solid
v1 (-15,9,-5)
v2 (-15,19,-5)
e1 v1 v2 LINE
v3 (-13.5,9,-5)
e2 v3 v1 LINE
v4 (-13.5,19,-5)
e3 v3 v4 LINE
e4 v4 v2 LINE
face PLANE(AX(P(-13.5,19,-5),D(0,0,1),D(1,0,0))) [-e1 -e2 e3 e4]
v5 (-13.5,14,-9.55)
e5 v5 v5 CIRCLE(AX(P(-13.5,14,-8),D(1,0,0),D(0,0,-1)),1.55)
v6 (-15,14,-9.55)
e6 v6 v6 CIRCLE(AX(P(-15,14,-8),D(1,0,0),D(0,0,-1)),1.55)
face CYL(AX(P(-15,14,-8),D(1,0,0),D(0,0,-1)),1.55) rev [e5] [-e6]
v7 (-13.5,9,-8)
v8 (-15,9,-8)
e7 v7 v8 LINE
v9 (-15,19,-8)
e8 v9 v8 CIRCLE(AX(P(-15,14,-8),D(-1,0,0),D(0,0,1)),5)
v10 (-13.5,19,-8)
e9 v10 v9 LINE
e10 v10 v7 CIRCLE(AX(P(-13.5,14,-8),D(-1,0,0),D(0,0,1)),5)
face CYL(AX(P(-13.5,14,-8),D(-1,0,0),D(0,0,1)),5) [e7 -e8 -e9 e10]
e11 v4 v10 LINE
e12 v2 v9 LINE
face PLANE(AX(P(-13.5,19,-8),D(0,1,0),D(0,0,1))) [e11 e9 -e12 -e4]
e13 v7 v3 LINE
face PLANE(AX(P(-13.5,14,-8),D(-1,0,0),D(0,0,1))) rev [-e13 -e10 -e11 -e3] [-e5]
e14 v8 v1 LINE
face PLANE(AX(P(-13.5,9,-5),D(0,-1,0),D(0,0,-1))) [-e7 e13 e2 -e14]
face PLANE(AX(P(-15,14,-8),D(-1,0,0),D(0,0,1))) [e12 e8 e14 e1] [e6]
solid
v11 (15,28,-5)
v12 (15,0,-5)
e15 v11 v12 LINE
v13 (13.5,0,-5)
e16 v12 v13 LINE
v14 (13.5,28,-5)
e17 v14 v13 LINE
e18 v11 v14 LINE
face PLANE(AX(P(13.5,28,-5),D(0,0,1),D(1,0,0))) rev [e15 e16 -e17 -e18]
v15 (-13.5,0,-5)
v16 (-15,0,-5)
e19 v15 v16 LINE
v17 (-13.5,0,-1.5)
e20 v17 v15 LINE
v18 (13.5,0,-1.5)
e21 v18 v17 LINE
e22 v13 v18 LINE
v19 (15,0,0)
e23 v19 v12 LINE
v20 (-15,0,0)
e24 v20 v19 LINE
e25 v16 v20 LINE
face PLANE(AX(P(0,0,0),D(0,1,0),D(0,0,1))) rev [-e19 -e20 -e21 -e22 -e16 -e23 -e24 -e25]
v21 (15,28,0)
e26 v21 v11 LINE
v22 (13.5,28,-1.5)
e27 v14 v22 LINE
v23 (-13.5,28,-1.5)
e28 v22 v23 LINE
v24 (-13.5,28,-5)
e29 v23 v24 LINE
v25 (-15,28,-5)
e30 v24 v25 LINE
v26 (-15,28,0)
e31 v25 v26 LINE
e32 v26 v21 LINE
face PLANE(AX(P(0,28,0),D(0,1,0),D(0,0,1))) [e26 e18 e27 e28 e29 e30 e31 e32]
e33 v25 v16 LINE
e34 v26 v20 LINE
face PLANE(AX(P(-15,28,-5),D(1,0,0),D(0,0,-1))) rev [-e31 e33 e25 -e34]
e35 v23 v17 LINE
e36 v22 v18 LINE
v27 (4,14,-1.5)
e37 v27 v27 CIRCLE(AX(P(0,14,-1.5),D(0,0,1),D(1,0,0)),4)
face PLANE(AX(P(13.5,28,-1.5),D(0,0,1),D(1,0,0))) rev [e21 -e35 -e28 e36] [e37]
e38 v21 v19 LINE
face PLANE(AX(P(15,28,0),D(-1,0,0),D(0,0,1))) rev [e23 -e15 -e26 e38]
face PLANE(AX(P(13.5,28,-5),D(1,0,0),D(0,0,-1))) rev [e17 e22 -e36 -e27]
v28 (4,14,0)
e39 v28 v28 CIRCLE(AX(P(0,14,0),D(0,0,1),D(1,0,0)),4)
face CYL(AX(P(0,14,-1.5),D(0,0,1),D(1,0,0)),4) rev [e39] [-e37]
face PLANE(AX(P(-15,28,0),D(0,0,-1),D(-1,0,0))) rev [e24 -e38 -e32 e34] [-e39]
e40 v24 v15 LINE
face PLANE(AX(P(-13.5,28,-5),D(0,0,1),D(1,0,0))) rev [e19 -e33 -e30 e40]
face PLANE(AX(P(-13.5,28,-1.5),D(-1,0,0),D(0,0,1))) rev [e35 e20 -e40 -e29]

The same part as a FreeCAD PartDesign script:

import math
import FreeCAD as App
import Part
import Sketcher
Q = App.Units.Quantity


def add_polygon(sketch, points):
    """Adds a closed chain of lines whose ends are joined by coincident constraints."""
    first, n = sketch.GeometryCount, len(points)
    for a, b in zip(points, points[1:] + points[:1]):
        sketch.addGeometry(Part.LineSegment(App.Vector(*a, 0), App.Vector(*b, 0)), False)
    for i in range(n):
        sketch.addConstraint(Sketcher.Constraint("Coincident", first + i, 2, first + (i + 1) % n, 1))

doc = App.newDocument("Part")
body = doc.addObject("PartDesign::Body", "Body")

sketch1 = body.newObject("Sketcher::SketchObject", "Sketch")
sketch1.AttachmentSupport = (doc.getObject("XZ_Plane"), [""])
sketch1.MapMode = "FlatFace"
add_polygon(sketch1, [(-15, 0), (15, 0), (15, -5), (13.5, -5), (13.5, -1.5), (-13.5, -1.5), (-13.5, -5), (-15, -5)])
sketch1.addConstraint([
    Sketcher.Constraint("Horizontal", 0),
    Sketcher.Constraint("Vertical", 1),
    Sketcher.Constraint("Horizontal", 2),
    Sketcher.Constraint("Vertical", 3),
    Sketcher.Constraint("Horizontal", 4),
    Sketcher.Constraint("Vertical", 5),
    Sketcher.Constraint("Horizontal", 6),
    Sketcher.Constraint("Vertical", 7),
    Sketcher.Constraint("Symmetric", 0, 2, 7, 2, -1, 1),
    Sketcher.Constraint("Symmetric", 2, 2, 5, 2, -2),
    Sketcher.Constraint("DistanceX", 0, 1, 0, 2, Q("30 mm")),
    Sketcher.Constraint("DistanceX", 4, 2, 4, 1, Q("27 mm")),
    Sketcher.Constraint("DistanceY", 1, 2, 1, 1, Q("5 mm")),
    Sketcher.Constraint("DistanceY", 3, 1, 3, 2, Q("3.5 mm")),
])
pad1 = body.newObject("PartDesign::Pad", "Pad")
pad1.Profile = sketch1
pad1.Length = 28
pad1.Reversed = True

sketch2 = body.newObject("Sketcher::SketchObject", "Sketch001")
sketch2.AttachmentSupport = (doc.getObject("XY_Plane"), [""])
sketch2.MapMode = "FlatFace"
sketch2.addGeometry(Part.Circle(App.Vector(0, 14, 0), App.Vector(0, 0, 1), 4), False)
sketch2.addConstraint([
    Sketcher.Constraint("PointOnObject", 0, 3, -2),
    Sketcher.Constraint("Diameter", 0, Q("8 mm")),
    Sketcher.Constraint("DistanceY", -1, 1, 0, 3, Q("14 mm")),
])
pocket1 = body.newObject("PartDesign::Pocket", "Pocket")
pocket1.Profile = sketch2
pocket1.Length = 1.5
body2 = doc.addObject("PartDesign::Body", "Body001")

sketch3 = body2.newObject("Sketcher::SketchObject", "Sketch002")
sketch3.AttachmentSupport = (doc.getObject("YZ_Plane001"), [""])
sketch3.MapMode = "FlatFace"
sketch3.AttachmentOffset = App.Placement(App.Vector(0, 0, -15), App.Rotation())
sketch3.addGeometry([
    Part.LineSegment(App.Vector(19, -5, 0), App.Vector(19, -8, 0)),
    Part.ArcOfCircle(Part.Circle(App.Vector(14, -8, 0), App.Vector(0, 0, 1), 5), math.radians(180), math.radians(360)),
    Part.LineSegment(App.Vector(9, -8, 0), App.Vector(9, -5, 0)),
    Part.LineSegment(App.Vector(9, -5, 0), App.Vector(19, -5, 0)),
], False)
sketch3.addConstraint([
    Sketcher.Constraint("Tangent", 0, 2, 1, 2),
    Sketcher.Constraint("Tangent", 1, 1, 2, 1),
    Sketcher.Constraint("Coincident", 2, 2, 3, 1),
    Sketcher.Constraint("Coincident", 3, 2, 0, 1),
    Sketcher.Constraint("Vertical", 0),
    Sketcher.Constraint("Vertical", 2),
    Sketcher.Constraint("Horizontal", 3),
    Sketcher.Constraint("Radius", 1, Q("5 mm")),
    Sketcher.Constraint("DistanceY", 0, 2, 0, 1, Q("3 mm")),
    Sketcher.Constraint("DistanceX", -1, 1, 1, 3, Q("14 mm")),
    Sketcher.Constraint("DistanceY", 1, 3, -1, 1, Q("8 mm")),
])
pad2 = body2.newObject("PartDesign::Pad", "Pad001")
pad2.Profile = sketch3
pad2.Length = 1.5

sketch4 = body2.newObject("Sketcher::SketchObject", "Sketch003")
sketch4.AttachmentSupport = (doc.getObject("YZ_Plane001"), [""])
sketch4.MapMode = "FlatFace"
sketch4.AttachmentOffset = App.Placement(App.Vector(0, 0, -13.5), App.Rotation())
sketch4.addGeometry(Part.Circle(App.Vector(14, -8, 0), App.Vector(0, 0, 1), 1.55), False)
sketch4.addConstraint([
    Sketcher.Constraint("Diameter", 0, Q("3.1 mm")),
    Sketcher.Constraint("DistanceX", -1, 1, 0, 3, Q("14 mm")),
    Sketcher.Constraint("DistanceY", 0, 3, -1, 1, Q("8 mm")),
])
pocket2 = body2.newObject("PartDesign::Pocket", "Pocket001")
pocket2.Profile = sketch4
pocket2.Length = 1.5

doc.recompute()
